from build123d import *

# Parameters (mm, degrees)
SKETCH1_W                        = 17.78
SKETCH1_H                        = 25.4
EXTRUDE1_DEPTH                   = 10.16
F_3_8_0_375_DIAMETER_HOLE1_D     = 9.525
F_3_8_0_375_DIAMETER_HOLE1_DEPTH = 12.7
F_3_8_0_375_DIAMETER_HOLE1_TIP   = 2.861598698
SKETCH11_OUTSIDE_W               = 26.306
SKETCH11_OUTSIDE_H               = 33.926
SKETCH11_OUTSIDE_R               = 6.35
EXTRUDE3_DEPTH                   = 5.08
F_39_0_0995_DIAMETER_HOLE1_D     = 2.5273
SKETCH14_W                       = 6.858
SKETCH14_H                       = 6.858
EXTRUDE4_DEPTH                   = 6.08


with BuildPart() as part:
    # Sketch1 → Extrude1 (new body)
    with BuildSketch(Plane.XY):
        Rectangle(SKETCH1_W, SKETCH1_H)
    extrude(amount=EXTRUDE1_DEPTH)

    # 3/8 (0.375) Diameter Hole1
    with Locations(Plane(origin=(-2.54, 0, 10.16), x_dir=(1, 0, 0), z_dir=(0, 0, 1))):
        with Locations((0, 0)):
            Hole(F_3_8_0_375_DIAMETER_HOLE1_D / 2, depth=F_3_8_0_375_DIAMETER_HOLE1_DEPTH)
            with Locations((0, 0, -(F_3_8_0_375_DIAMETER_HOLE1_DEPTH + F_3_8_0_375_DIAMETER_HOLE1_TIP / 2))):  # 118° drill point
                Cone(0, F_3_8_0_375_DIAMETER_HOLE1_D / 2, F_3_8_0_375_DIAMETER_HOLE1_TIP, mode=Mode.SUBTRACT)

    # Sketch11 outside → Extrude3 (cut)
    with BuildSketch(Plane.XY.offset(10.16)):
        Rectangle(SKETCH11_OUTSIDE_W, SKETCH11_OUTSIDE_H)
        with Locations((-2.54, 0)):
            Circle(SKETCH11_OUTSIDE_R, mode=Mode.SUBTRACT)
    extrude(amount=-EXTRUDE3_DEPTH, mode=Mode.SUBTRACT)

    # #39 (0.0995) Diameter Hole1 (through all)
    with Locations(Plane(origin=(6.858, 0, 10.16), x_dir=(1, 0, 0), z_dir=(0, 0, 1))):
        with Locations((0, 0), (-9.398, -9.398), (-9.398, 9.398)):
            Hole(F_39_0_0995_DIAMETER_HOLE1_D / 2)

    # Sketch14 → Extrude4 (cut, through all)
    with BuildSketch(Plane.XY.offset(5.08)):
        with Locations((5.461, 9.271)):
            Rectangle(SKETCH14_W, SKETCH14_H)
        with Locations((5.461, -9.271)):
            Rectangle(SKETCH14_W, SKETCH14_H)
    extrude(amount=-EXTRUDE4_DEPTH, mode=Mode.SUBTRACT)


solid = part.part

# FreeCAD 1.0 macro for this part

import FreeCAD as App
import Part
import Sketcher
from FreeCAD import Vector
Q = App.Units.Quantity


def add_polygon(sketch, points):
    """Adds a closed chain of lines whose ends are joined by coincident constraints."""
    first, n = sketch.GeometryCount, len(points)
    for a, b in zip(points, points[1:] + points[:1]):
        sketch.addGeometry(Part.LineSegment(App.Vector(*a, 0), App.Vector(*b, 0)), False)
    for i in range(n):
        sketch.addConstraint(Sketcher.Constraint("Coincident", first + i, 2, first + (i + 1) % n, 1))

doc = App.newDocument("Part")
body = doc.addObject("PartDesign::Body", "Body")

# Sketch on XY plane
sketch1 = doc.addObject("Sketcher::SketchObject", "Sketch")
body.addObject(sketch1)
sketch1.AttachmentSupport = (doc.XY_Plane, [""])
sketch1.MapMode = "FlatFace"
add_polygon(sketch1, [(-8.89, 12.7), (-8.89, -12.7), (8.89, -12.7), (8.89, 12.7)])  # lines 0-3
sketch1.addConstraint(Sketcher.Constraint("Vertical", 0))
sketch1.addConstraint(Sketcher.Constraint("Horizontal", 1))
sketch1.addConstraint(Sketcher.Constraint("Vertical", 2))
sketch1.addConstraint(Sketcher.Constraint("Horizontal", 3))
sketch1.addConstraint(Sketcher.Constraint("Symmetric", 0, 2, 2, 2, -1, 1))
sketch1.addConstraint(Sketcher.Constraint("DistanceY", 0, 2, 0, 1, Q("1 in")))
sketch1.addConstraint(Sketcher.Constraint("DistanceX", 1, 1, 1, 2, Q("0.7 in")))
pad1 = doc.addObject("PartDesign::Pad", "Pad")
body.addObject(pad1)
pad1.Profile = sketch1
pad1.Length = Q("0.4 in")

# Sketch on XY plane
sketch2 = doc.addObject("Sketcher::SketchObject", "Sketch001")
body.addObject(sketch2)
sketch2.AttachmentSupport = (doc.XY_Plane, [""])
sketch2.MapMode = "FlatFace"
sketch2.AttachmentOffset = App.Placement(Vector(0, 0, 0.4 * 25.4), App.Rotation())
sketch2.addGeometry(Part.Circle(Vector(-2.54, 0, 0), Vector(0, 0, 1), 4.7625), False)
sketch2.addConstraint(Sketcher.Constraint("PointOnObject", 0, 3, -1))
sketch2.addConstraint(Sketcher.Constraint("Diameter", 0, Q("0.375 in")))
sketch2.addConstraint(Sketcher.Constraint("DistanceX", 0, 3, -1, 1, Q("0.1 in")))
doc.recompute()
hole = doc.addObject("PartDesign::Hole", "Hole")
body.addObject(hole)
hole.Profile = sketch2
hole.ThreadType = "None"
hole.Diameter = Q("0.375 in")
hole.DepthType = "Dimension"
hole.Depth = Q("0.5 in")
hole.DrillPoint = "Angled"
hole.DrillPointAngle = 118

# Sketch on XY plane
sketch3 = doc.addObject("Sketcher::SketchObject", "Sketch002")
body.addObject(sketch3)
sketch3.AttachmentSupport = (doc.XY_Plane, [""])
sketch3.MapMode = "FlatFace"
sketch3.AttachmentOffset = App.Placement(Vector(0, 0, 0.4 * 25.4), App.Rotation())
add_polygon(sketch3, [(-13.153, 16.963), (-13.153, -16.963), (13.153, -16.963), (13.153, 16.963)])  # lines 0-3
sketch3.addGeometry(Part.Circle(Vector(-2.54, 0, 0), Vector(0, 0, 1), 6.35), False)  # 4
sketch3.addConstraint(Sketcher.Constraint("Vertical", 0))
sketch3.addConstraint(Sketcher.Constraint("Horizontal", 1))
sketch3.addConstraint(Sketcher.Constraint("Vertical", 2))
sketch3.addConstraint(Sketcher.Constraint("Horizontal", 3))
sketch3.addConstraint(Sketcher.Constraint("Symmetric", 0, 2, 2, 2, -1, 1))
sketch3.addConstraint(Sketcher.Constraint("PointOnObject", 4, 3, -1))
sketch3.addConstraint(Sketcher.Constraint("Diameter", 4, Q("0.5 in")))
sketch3.addConstraint(Sketcher.Constraint("DistanceX", 4, 3, -1, 1, Q("0.1 in")))
sketch3.addConstraint(Sketcher.Constraint("DistanceX", 1, 1, 1, 2, Q("26.306 mm")))
sketch3.addConstraint(Sketcher.Constraint("DistanceY", 0, 2, 0, 1, Q("33.926 mm")))
pocket1 = doc.addObject("PartDesign::Pocket", "Pocket")
body.addObject(pocket1)
pocket1.Profile = sketch3
pocket1.Length = Q("0.2 in")

# Sketch on XY plane
sketch4 = doc.addObject("Sketcher::SketchObject", "Sketch003")
body.addObject(sketch4)
sketch4.AttachmentSupport = (doc.XY_Plane, [""])
sketch4.MapMode = "FlatFace"
sketch4.AttachmentOffset = App.Placement(Vector(0, 0, 0.4 * 25.4), App.Rotation())
sketch4.addGeometry(Part.Circle(Vector(6.858, 0, 0), Vector(0, 0, 1), 1.26365), False)
sketch4.addGeometry(Part.Circle(Vector(-2.54, -9.398, 0), Vector(0, 0, 1), 1.26365), False)
sketch4.addGeometry(Part.Circle(Vector(-2.54, 9.398, 0), Vector(0, 0, 1), 1.26365), False)
sketch4.addConstraint(Sketcher.Constraint("Equal", 0, 1))
sketch4.addConstraint(Sketcher.Constraint("Equal", 1, 2))
sketch4.addConstraint(Sketcher.Constraint("Symmetric", 1, 3, 2, 3, -1))
sketch4.addConstraint(Sketcher.Constraint("PointOnObject", 0, 3, -1))
sketch4.addConstraint(Sketcher.Constraint("Diameter", 0, Q("0.0995 in")))
sketch4.addConstraint(Sketcher.Constraint("DistanceX", 1, 3, -1, 1, Q("0.1 in")))
sketch4.addConstraint(Sketcher.Constraint("DistanceX", -1, 1, 0, 3, Q("0.27 in")))
sketch4.addConstraint(Sketcher.Constraint("DistanceY", 1, 3, -1, 1, Q("0.37 in")))
doc.recompute()
hole2 = doc.addObject("PartDesign::Hole", "Hole001")
body.addObject(hole2)
hole2.Profile = sketch4
hole2.ThreadType = "None"
hole2.Diameter = Q("0.0995 in")
hole2.DepthType = "ThroughAll"

# Sketch on XY plane
sketch5 = doc.addObject("Sketcher::SketchObject", "Sketch004")
body.addObject(sketch5)
sketch5.AttachmentSupport = (doc.XY_Plane, [""])
sketch5.MapMode = "FlatFace"
sketch5.AttachmentOffset = App.Placement(Vector(0, 0, 0.2 * 25.4), App.Rotation())
add_polygon(sketch5, [(2.032, 12.7), (2.032, 5.842), (8.89, 5.842), (8.89, 12.7)])  # lines 0-3
add_polygon(sketch5, [(2.032, -5.842), (2.032, -12.7), (8.89, -12.7), (8.89, -5.842)])  # lines 4-7
sketch5.addConstraint(Sketcher.Constraint("Vertical", 0))
sketch5.addConstraint(Sketcher.Constraint("Horizontal", 1))
sketch5.addConstraint(Sketcher.Constraint("Vertical", 2))
sketch5.addConstraint(Sketcher.Constraint("Horizontal", 3))
sketch5.addConstraint(Sketcher.Constraint("Vertical", 4))
sketch5.addConstraint(Sketcher.Constraint("Horizontal", 5))
sketch5.addConstraint(Sketcher.Constraint("Vertical", 6))
sketch5.addConstraint(Sketcher.Constraint("Horizontal", 7))
sketch5.addConstraint(Sketcher.Constraint("Symmetric", 3, 2, 4, 2, -1))
sketch5.addConstraint(Sketcher.Constraint("Symmetric", 1, 2, 6, 2, -1))
sketch5.addConstraint(Sketcher.Constraint("Equal", 7, 0))
sketch5.addConstraint(Sketcher.Constraint("DistanceY", 4, 2, 3, 2, Q("1 in")))
sketch5.addConstraint(Sketcher.Constraint("DistanceX", 1, 1, 1, 2, Q("0.27 in")))
sketch5.addConstraint(Sketcher.Constraint("DistanceX", -1, 1, 0, 2, Q("0.08 in")))
pocket2 = doc.addObject("PartDesign::Pocket", "Pocket001")
body.addObject(pocket2)
pocket2.Profile = sketch5
pocket2.Type = "ThroughAll"

doc.recompute()
